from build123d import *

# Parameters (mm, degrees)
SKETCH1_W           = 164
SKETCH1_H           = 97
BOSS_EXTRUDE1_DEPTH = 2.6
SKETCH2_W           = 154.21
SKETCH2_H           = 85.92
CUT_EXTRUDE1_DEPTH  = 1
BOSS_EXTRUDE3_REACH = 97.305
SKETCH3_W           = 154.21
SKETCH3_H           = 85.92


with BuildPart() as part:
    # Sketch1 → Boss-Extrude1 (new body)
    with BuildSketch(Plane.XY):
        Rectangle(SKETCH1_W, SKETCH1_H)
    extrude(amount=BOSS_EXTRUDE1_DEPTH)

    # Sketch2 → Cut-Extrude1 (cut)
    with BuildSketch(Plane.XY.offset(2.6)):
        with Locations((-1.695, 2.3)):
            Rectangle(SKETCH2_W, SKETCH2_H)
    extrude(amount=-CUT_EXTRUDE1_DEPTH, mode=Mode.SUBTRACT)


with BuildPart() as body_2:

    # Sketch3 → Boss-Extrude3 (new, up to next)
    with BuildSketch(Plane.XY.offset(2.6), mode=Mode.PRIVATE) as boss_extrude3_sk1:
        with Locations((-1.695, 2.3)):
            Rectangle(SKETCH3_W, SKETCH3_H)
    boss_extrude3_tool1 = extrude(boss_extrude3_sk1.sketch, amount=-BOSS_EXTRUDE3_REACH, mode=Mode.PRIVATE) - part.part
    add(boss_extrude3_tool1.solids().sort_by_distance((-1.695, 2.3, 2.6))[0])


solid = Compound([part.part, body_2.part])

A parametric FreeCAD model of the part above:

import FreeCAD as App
import Part
import Sketcher

doc = App.newDocument("Part")
body = doc.addObject("PartDesign::Body", "Body")

sketch1 = body.newObject("Sketcher::SketchObject", "Sketch")
sketch1.AttachmentSupport = (doc.getObject("XY_Plane"), [""])
sketch1.MapMode = "FlatFace"
sketch1.addGeometry(Part.LineSegment(App.Vector(-82, 48, 0), App.Vector(-82, -48, 0)), False)
sketch1.addGeometry(Part.LineSegment(App.Vector(-82, -48, 0), App.Vector(82, -48, 0)), False)
sketch1.addGeometry(Part.LineSegment(App.Vector(82, -48, 0), App.Vector(82, 48, 0)), False)
sketch1.addGeometry(Part.LineSegment(App.Vector(82, 48, 0), App.Vector(-82, 48, 0)), False)
sketch1.addConstraint(Sketcher.Constraint("Coincident", 0, 2, 1, 1))
sketch1.addConstraint(Sketcher.Constraint("Coincident", 1, 2, 2, 1))
sketch1.addConstraint(Sketcher.Constraint("Coincident", 2, 2, 3, 1))
sketch1.addConstraint(Sketcher.Constraint("Coincident", 3, 2, 0, 1))
sketch1.addConstraint(Sketcher.Constraint("Vertical", 0))
sketch1.addConstraint(Sketcher.Constraint("Horizontal", 1))
sketch1.addConstraint(Sketcher.Constraint("Vertical", 2))
sketch1.addConstraint(Sketcher.Constraint("Horizontal", 3))
sketch1.addConstraint(Sketcher.Constraint("Symmetric", 0, 2, 2, 2, -1, 1))
sketch1.addConstraint(Sketcher.Constraint("DistanceX", 1, 1, 1, 2, 164.0))
sketch1.addConstraint(Sketcher.Constraint("DistanceY", 0, 2, 0, 1, 97.0))
pad1 = body.newObject("PartDesign::Pad", "Pad")
pad1.Profile = sketch1
pad1.Length = 2.6

sketch2 = body.newObject("Sketcher::SketchObject", "Sketch001")
sketch2.AttachmentSupport = (doc.getObject("XY_Plane"), [""])
sketch2.MapMode = "FlatFace"
sketch2.AttachmentOffset = App.Placement(App.Vector(0, 0, 2.6), App.Rotation())
sketch2.addGeometry(Part.LineSegment(App.Vector(-79, 45, 0), App.Vector(-79, -41, 0)), False)
sketch2.addGeometry(Part.LineSegment(App.Vector(-79, -41, 0), App.Vector(75, -41, 0)), False)
sketch2.addGeometry(Part.LineSegment(App.Vector(75, -41, 0), App.Vector(75, 45, 0)), False)
sketch2.addGeometry(Part.LineSegment(App.Vector(75, 45, 0), App.Vector(-79, 45, 0)), False)
sketch2.addConstraint(Sketcher.Constraint("Coincident", 0, 2, 1, 1))
sketch2.addConstraint(Sketcher.Constraint("Coincident", 1, 2, 2, 1))
sketch2.addConstraint(Sketcher.Constraint("Coincident", 2, 2, 3, 1))
sketch2.addConstraint(Sketcher.Constraint("Coincident", 3, 2, 0, 1))
sketch2.addConstraint(Sketcher.Constraint("Vertical", 0))
sketch2.addConstraint(Sketcher.Constraint("Horizontal", 1))
sketch2.addConstraint(Sketcher.Constraint("Vertical", 2))
sketch2.addConstraint(Sketcher.Constraint("Horizontal", 3))
sketch2.addConstraint(Sketcher.Constraint("DistanceX", 1, 1, 1, 2, 154.21))
sketch2.addConstraint(Sketcher.Constraint("DistanceY", 0, 2, 0, 1, 85.92))
sketch2.addConstraint(Sketcher.Constraint("DistanceX", 0, 2, -1, 1, 78.8))
sketch2.addConstraint(Sketcher.Constraint("DistanceY", 0, 2, -1, 1, 40.66))
pocket1 = body.newObject("PartDesign::Pocket", "Pocket")
pocket1.Profile = sketch2
pocket1.Length = 1
body2 = doc.addObject("PartDesign::Body", "Body001")

sketch3 = body2.newObject("Sketcher::SketchObject", "Sketch002")
sketch3.AttachmentSupport = (doc.getObject("XY_Plane001"), [""])
sketch3.MapMode = "FlatFace"
sketch3.AttachmentOffset = App.Placement(App.Vector(0, 0, 2.6), App.Rotation())
sketch3.addGeometry(Part.LineSegment(App.Vector(-79, 45, 0), App.Vector(-79, -41, 0)), False)
sketch3.addGeometry(Part.LineSegment(App.Vector(-79, -41, 0), App.Vector(75, -41, 0)), False)
sketch3.addGeometry(Part.LineSegment(App.Vector(75, -41, 0), App.Vector(75, 45, 0)), False)
sketch3.addGeometry(Part.LineSegment(App.Vector(75, 45, 0), App.Vector(-79, 45, 0)), False)
sketch3.addConstraint(Sketcher.Constraint("Coincident", 0, 2, 1, 1))
sketch3.addConstraint(Sketcher.Constraint("Coincident", 1, 2, 2, 1))
sketch3.addConstraint(Sketcher.Constraint("Coincident", 2, 2, 3, 1))
sketch3.addConstraint(Sketcher.Constraint("Coincident", 3, 2, 0, 1))
sketch3.addConstraint(Sketcher.Constraint("Vertical", 0))
sketch3.addConstraint(Sketcher.Constraint("Horizontal", 1))
sketch3.addConstraint(Sketcher.Constraint("Vertical", 2))
sketch3.addConstraint(Sketcher.Constraint("Horizontal", 3))
sketch3.addConstraint(Sketcher.Constraint("DistanceX", 1, 1, 1, 2, 154.21))
sketch3.addConstraint(Sketcher.Constraint("DistanceY", 0, 2, 0, 1, 85.92))
sketch3.addConstraint(Sketcher.Constraint("DistanceX", 0, 2, -1, 1, 78.8))
sketch3.addConstraint(Sketcher.Constraint("DistanceY", 0, 2, -1, 1, 40.66))
pad2 = body2.newObject("PartDesign::Pad", "Pad001")
pad2.Profile = sketch3
pad2.Length = 1
pad2.Reversed = True

doc.recompute()
